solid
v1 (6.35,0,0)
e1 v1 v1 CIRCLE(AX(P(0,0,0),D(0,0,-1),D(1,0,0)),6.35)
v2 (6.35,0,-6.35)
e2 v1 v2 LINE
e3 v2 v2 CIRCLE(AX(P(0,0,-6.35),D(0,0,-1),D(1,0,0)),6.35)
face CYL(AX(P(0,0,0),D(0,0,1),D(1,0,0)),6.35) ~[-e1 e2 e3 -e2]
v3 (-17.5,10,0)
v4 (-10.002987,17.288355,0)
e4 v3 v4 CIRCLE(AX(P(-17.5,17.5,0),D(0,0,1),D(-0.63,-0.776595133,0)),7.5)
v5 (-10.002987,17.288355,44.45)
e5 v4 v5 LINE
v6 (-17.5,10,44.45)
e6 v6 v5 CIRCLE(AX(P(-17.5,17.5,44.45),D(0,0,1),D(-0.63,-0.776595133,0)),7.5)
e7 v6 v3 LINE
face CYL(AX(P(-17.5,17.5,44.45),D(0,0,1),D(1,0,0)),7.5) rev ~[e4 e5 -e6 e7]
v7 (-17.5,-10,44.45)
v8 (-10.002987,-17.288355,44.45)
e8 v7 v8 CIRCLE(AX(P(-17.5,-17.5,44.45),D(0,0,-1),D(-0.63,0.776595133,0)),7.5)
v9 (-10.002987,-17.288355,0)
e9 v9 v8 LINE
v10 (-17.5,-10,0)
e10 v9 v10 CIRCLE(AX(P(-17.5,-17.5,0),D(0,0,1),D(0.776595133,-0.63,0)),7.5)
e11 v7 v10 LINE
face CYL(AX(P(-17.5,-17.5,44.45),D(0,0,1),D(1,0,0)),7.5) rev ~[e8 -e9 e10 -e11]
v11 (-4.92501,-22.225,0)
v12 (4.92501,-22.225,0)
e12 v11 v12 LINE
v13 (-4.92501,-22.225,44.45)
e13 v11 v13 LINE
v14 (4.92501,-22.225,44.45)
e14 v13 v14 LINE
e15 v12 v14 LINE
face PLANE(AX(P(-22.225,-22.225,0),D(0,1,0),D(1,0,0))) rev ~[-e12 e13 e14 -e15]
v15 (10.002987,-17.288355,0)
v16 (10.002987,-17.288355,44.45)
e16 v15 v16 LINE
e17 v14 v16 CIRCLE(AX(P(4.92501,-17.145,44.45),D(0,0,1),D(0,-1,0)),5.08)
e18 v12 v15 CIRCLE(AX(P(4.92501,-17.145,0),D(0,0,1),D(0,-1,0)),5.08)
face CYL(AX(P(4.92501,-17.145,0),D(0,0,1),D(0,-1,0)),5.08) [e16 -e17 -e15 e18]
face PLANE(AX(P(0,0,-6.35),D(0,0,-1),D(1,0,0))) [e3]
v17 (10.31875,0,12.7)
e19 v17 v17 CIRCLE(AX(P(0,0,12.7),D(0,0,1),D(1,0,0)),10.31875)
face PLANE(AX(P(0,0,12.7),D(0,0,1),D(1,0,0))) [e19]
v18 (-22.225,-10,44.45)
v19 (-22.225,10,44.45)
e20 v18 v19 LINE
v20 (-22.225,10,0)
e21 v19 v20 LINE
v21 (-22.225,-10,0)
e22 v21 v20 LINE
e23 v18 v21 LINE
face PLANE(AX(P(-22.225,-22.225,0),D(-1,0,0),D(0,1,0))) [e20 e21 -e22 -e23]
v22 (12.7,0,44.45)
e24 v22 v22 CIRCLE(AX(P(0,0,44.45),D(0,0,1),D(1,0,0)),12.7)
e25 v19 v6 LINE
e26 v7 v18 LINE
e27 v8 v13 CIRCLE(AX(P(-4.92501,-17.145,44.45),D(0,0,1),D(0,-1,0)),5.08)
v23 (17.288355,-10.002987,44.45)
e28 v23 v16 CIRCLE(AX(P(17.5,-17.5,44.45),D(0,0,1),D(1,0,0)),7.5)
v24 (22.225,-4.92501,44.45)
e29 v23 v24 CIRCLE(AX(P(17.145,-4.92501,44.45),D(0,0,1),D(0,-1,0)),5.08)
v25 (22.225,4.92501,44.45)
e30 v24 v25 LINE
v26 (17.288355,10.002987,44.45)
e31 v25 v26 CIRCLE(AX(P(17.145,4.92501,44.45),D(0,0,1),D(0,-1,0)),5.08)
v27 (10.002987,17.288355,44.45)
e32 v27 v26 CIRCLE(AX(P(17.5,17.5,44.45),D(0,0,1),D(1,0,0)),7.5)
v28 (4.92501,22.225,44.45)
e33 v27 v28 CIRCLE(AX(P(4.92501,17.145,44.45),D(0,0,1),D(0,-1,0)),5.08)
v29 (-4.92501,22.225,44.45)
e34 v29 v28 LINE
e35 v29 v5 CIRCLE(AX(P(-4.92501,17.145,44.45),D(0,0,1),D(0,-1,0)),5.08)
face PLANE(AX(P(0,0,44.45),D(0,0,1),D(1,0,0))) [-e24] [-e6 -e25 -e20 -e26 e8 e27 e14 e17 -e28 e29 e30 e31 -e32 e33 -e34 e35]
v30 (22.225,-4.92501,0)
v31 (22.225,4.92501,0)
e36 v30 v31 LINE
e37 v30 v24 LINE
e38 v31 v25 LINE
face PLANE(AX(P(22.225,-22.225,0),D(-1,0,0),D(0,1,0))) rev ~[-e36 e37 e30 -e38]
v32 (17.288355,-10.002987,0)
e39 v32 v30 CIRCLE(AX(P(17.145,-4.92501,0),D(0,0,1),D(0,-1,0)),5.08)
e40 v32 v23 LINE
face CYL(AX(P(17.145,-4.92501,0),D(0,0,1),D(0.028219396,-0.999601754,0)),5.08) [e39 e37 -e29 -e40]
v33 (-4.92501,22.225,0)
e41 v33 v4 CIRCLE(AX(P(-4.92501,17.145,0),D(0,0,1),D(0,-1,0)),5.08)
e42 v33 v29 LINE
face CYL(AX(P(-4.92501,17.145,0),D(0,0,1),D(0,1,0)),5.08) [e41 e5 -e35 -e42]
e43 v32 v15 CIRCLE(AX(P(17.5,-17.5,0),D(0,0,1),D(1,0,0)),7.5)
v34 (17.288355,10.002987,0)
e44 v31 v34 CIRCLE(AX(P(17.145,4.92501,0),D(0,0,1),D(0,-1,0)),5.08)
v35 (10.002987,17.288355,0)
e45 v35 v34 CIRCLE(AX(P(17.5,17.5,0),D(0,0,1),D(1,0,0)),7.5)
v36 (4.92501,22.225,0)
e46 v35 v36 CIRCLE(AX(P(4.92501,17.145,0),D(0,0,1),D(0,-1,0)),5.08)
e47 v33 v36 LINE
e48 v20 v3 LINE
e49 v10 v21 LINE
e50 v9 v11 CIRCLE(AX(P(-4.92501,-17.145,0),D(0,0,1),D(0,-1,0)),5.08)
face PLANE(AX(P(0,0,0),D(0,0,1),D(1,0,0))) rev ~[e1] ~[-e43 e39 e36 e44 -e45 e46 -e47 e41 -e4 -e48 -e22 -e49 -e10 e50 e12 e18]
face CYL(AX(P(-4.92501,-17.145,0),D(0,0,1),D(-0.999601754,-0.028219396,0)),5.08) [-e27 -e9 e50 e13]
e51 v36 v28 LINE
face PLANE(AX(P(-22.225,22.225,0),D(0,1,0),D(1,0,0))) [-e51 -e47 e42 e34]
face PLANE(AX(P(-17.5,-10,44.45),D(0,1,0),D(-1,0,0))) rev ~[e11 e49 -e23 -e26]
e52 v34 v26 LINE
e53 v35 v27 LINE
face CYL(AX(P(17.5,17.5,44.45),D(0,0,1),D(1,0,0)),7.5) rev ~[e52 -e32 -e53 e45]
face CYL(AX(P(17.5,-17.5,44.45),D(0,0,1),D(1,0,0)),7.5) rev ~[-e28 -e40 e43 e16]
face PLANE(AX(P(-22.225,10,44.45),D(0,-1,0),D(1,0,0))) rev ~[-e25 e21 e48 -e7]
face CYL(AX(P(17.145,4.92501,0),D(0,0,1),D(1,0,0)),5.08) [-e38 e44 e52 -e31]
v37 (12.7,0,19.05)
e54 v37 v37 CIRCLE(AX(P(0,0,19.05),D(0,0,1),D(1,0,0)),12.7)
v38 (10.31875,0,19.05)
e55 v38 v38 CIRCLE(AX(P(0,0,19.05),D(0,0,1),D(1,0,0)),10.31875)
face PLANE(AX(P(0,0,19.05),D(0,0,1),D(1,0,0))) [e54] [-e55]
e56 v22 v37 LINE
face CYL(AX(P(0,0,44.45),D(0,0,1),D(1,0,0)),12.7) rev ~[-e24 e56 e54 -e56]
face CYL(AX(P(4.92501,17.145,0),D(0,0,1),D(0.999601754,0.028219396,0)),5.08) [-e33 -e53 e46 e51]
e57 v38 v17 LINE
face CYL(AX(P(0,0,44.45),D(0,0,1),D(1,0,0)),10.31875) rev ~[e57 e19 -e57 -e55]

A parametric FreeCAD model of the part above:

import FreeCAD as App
import Part
import Sketcher
Q = App.Units.Quantity


def edges_at(feature, points):
    """Names of the edges that pass closest to the given points."""
    edges = feature.Shape.Edges
    near = lambda p: min(range(len(edges)), key=lambda i: edges[i].distToShape(Part.Vertex(*p))[0])
    return sorted({f"Edge{near(p) + 1}" for p in points})

doc = App.newDocument("Part")
body = doc.addObject("PartDesign::Body", "Body")

# Sketch on XY plane
sketch1 = body.newObject("Sketcher::SketchObject", "Sketch")
sketch1.AttachmentSupport = (doc.getObject("XY_Plane"), [""])
sketch1.MapMode = "FlatFace"
sketch1.addGeometry(Part.LineSegment(App.Vector(-22, 22, 0), App.Vector(-22, -22, 0)), False)
sketch1.addGeometry(Part.LineSegment(App.Vector(-22, -22, 0), App.Vector(22, -22, 0)), False)
sketch1.addGeometry(Part.LineSegment(App.Vector(22, -22, 0), App.Vector(22, 22, 0)), False)
sketch1.addGeometry(Part.LineSegment(App.Vector(22, 22, 0), App.Vector(-22, 22, 0)), False)
sketch1.addConstraint(Sketcher.Constraint("Coincident", 0, 2, 1, 1))
sketch1.addConstraint(Sketcher.Constraint("Coincident", 1, 2, 2, 1))
sketch1.addConstraint(Sketcher.Constraint("Coincident", 2, 2, 3, 1))
sketch1.addConstraint(Sketcher.Constraint("Coincident", 3, 2, 0, 1))
sketch1.addConstraint(Sketcher.Constraint("Vertical", 0))
sketch1.addConstraint(Sketcher.Constraint("Horizontal", 1))
sketch1.addConstraint(Sketcher.Constraint("Vertical", 2))
sketch1.addConstraint(Sketcher.Constraint("Horizontal", 3))
sketch1.addConstraint(Sketcher.Constraint("Symmetric", 0, 2, 2, 2, -1, 1))
sketch1.addConstraint(Sketcher.Constraint("Equal", 3, 0))
sketch1.addConstraint(Sketcher.Constraint("DistanceX", 1, 1, 1, 2, Q("1.75 in")))
pad1 = body.newObject("PartDesign::Pad", "Pad")
pad1.Profile = sketch1
pad1.Length = Q("1.75 in")

# Sketch on XY plane
sketch2 = body.newObject("Sketcher::SketchObject", "Sketch001")
sketch2.AttachmentSupport = (doc.getObject("XY_Plane"), [""])
sketch2.MapMode = "FlatFace"
sketch2.AttachmentOffset = App.Placement(App.Vector(0, 0, 1.75 * 25.4), App.Rotation())
sketch2.addGeometry(Part.Circle(App.Vector(0, 0, 0), App.Vector(0, 0, 1), 10), False)
sketch2.addConstraint(Sketcher.Constraint("Coincident", 0, 3, -1, 1))
sketch2.addConstraint(Sketcher.Constraint("Diameter", 0, Q("0.8125 in")))
pocket1 = body.newObject("PartDesign::Pocket", "Pocket")
pocket1.Profile = sketch2
pocket1.Length = Q("1.25 in")

# Sketch on XY plane
sketch3 = body.newObject("Sketcher::SketchObject", "Sketch002")
sketch3.AttachmentSupport = (doc.getObject("XY_Plane"), [""])
sketch3.MapMode = "FlatFace"
sketch3.AttachmentOffset = App.Placement(App.Vector(0, 0, 1.75 * 25.4), App.Rotation())
sketch3.addGeometry(Part.Circle(App.Vector(-18, 18, 0), App.Vector(0, 0, 1), 8), False)
sketch3.addGeometry(Part.Circle(App.Vector(18, 18, 0), App.Vector(0, 0, 1), 8), False)
sketch3.addGeometry(Part.Circle(App.Vector(18, -18, 0), App.Vector(0, 0, 1), 8), False)
sketch3.addGeometry(Part.Circle(App.Vector(-18, -18, 0), App.Vector(0, 0, 1), 8), False)
sketch3.addConstraint(Sketcher.Constraint("Equal", 0, 1))
sketch3.addConstraint(Sketcher.Constraint("Equal", 1, 2))
sketch3.addConstraint(Sketcher.Constraint("Equal", 2, 3))
sketch3.addConstraint(Sketcher.Constraint("Symmetric", 0, 3, 2, 3, -1, 1))
sketch3.addConstraint(Sketcher.Constraint("Symmetric", 1, 3, 3, 3, -1, 1))
sketch3.addConstraint(Sketcher.Constraint("Symmetric", 0, 3, 1, 3, -2))
sketch3.addConstraint(Sketcher.Constraint("Diameter", 0, Q("15 mm")))
sketch3.addConstraint(Sketcher.Constraint("DistanceX", 0, 3, -1, 1, Q("17.5 mm")))
sketch3.addConstraint(Sketcher.Constraint("DistanceY", -1, 1, 0, 3, Q("17.5 mm")))
pocket2 = body.newObject("PartDesign::Pocket", "Pocket001")
pocket2.Profile = sketch3
pocket2.Length = Q("2 in")
doc.recompute()

fillet = body.newObject("PartDesign::Fillet", "Fillet")
fillet.Base = (pocket2, edges_at(pocket2, [
    (-11.676, -22.225, 22.225),
    (11.676, -22.225, 22.225),
    (22.225, -11.676, 22.225),
    (-11.676, 22.225, 22.225),
    (11.676, 22.225, 22.225),
    (22.225, 11.676, 22.225),
]))
fillet.Radius = Q("0.2 in")

# Sketch on XY plane
sketch4 = body.newObject("Sketcher::SketchObject", "Sketch003")
sketch4.AttachmentSupport = (doc.getObject("XY_Plane"), [""])
sketch4.MapMode = "FlatFace"
sketch4.AttachmentOffset = App.Placement(App.Vector(0, 0, 1.75 * 25.4), App.Rotation())
sketch4.addGeometry(Part.LineSegment(App.Vector(-22.2, 10, 0), App.Vector(-17.5, 10, 0)), False)
sketch4.addGeometry(Part.LineSegment(App.Vector(-17.5, 10, 0), App.Vector(-22.2, 11.7, 0)), False)
sketch4.addGeometry(Part.LineSegment(App.Vector(-22.2, 11.7, 0), App.Vector(-22.2, 10, 0)), False)
sketch4.addGeometry(Part.LineSegment(App.Vector(-22.2, -12.6, 0), App.Vector(-17.5, -10, 0)), False)
sketch4.addGeometry(Part.LineSegment(App.Vector(-17.5, -10, 0), App.Vector(-22.2, -10, 0)), False)
sketch4.addGeometry(Part.LineSegment(App.Vector(-22.2, -10, 0), App.Vector(-22.2, -12.6, 0)), False)
sketch4.addConstraint(Sketcher.Constraint("Coincident", 0, 2, 1, 1))
sketch4.addConstraint(Sketcher.Constraint("Coincident", 1, 2, 2, 1))
sketch4.addConstraint(Sketcher.Constraint("Coincident", 2, 2, 0, 1))
sketch4.addConstraint(Sketcher.Constraint("Coincident", 3, 2, 4, 1))
sketch4.addConstraint(Sketcher.Constraint("Coincident", 4, 2, 5, 1))
sketch4.addConstraint(Sketcher.Constraint("Coincident", 5, 2, 3, 1))
sketch4.addConstraint(Sketcher.Constraint("Horizontal", 0))
sketch4.addConstraint(Sketcher.Constraint("Vertical", 2))
sketch4.addConstraint(Sketcher.Constraint("Horizontal", 4))
sketch4.addConstraint(Sketcher.Constraint("Vertical", 5))
sketch4.addConstraint(Sketcher.Constraint("Symmetric", 0, 2, 3, 2, -1))
sketch4.addConstraint(Sketcher.Constraint("Vertical", 2, 2, 4, 2))
sketch4.addConstraint(Sketcher.Constraint("DistanceX", 1, 2, -1, 1, Q("0.875 in")))
sketch4.addConstraint(Sketcher.Constraint("DistanceX", 0, 1, 0, 2, Q("4.725 mm")))
sketch4.addConstraint(Sketcher.Constraint("DistanceY", -1, 1, 0, 2, Q("10 mm")))
sketch4.addConstraint(Sketcher.Constraint("DistanceY", 2, 2, 2, 1, Q("1.675537 mm")))
sketch4.addConstraint(Sketcher.Constraint("DistanceY", 5, 2, 5, 1, Q("2.569526 mm")))
pocket3 = body.newObject("PartDesign::Pocket", "Pocket002")
pocket3.Profile = sketch4
pocket3.Length = Q("2 in")

# Sketch on XY plane
sketch5 = body.newObject("Sketcher::SketchObject", "Sketch004")
sketch5.AttachmentSupport = (doc.getObject("XY_Plane"), [""])
sketch5.MapMode = "FlatFace"
sketch5.addGeometry(Part.Circle(App.Vector(0, 0, 0), App.Vector(0, 0, 1), 6), False)
sketch5.addConstraint(Sketcher.Constraint("Coincident", 0, 3, -1, 1))
sketch5.addConstraint(Sketcher.Constraint("Diameter", 0, Q("0.5 in")))
pad2 = body.newObject("PartDesign::Pad", "Pad001")
pad2.Profile = sketch5
pad2.Length = Q("0.25 in")
pad2.Reversed = True

# Sketch on XY plane
sketch6 = body.newObject("Sketcher::SketchObject", "Sketch005")
sketch6.AttachmentSupport = (doc.getObject("XY_Plane"), [""])
sketch6.MapMode = "FlatFace"
sketch6.AttachmentOffset = App.Placement(App.Vector(0, 0, 1.75 * 25.4), App.Rotation())
sketch6.addGeometry(Part.Circle(App.Vector(0, 0, 0), App.Vector(0, 0, 1), 13), False)
sketch6.addConstraint(Sketcher.Constraint("Coincident", 0, 3, -1, 1))
sketch6.addConstraint(Sketcher.Constraint("Diameter", 0, Q("1 in")))
pocket4 = body.newObject("PartDesign::Pocket", "Pocket003")
pocket4.Profile = sketch6
pocket4.Length = Q("1 in")

doc.recompute()
